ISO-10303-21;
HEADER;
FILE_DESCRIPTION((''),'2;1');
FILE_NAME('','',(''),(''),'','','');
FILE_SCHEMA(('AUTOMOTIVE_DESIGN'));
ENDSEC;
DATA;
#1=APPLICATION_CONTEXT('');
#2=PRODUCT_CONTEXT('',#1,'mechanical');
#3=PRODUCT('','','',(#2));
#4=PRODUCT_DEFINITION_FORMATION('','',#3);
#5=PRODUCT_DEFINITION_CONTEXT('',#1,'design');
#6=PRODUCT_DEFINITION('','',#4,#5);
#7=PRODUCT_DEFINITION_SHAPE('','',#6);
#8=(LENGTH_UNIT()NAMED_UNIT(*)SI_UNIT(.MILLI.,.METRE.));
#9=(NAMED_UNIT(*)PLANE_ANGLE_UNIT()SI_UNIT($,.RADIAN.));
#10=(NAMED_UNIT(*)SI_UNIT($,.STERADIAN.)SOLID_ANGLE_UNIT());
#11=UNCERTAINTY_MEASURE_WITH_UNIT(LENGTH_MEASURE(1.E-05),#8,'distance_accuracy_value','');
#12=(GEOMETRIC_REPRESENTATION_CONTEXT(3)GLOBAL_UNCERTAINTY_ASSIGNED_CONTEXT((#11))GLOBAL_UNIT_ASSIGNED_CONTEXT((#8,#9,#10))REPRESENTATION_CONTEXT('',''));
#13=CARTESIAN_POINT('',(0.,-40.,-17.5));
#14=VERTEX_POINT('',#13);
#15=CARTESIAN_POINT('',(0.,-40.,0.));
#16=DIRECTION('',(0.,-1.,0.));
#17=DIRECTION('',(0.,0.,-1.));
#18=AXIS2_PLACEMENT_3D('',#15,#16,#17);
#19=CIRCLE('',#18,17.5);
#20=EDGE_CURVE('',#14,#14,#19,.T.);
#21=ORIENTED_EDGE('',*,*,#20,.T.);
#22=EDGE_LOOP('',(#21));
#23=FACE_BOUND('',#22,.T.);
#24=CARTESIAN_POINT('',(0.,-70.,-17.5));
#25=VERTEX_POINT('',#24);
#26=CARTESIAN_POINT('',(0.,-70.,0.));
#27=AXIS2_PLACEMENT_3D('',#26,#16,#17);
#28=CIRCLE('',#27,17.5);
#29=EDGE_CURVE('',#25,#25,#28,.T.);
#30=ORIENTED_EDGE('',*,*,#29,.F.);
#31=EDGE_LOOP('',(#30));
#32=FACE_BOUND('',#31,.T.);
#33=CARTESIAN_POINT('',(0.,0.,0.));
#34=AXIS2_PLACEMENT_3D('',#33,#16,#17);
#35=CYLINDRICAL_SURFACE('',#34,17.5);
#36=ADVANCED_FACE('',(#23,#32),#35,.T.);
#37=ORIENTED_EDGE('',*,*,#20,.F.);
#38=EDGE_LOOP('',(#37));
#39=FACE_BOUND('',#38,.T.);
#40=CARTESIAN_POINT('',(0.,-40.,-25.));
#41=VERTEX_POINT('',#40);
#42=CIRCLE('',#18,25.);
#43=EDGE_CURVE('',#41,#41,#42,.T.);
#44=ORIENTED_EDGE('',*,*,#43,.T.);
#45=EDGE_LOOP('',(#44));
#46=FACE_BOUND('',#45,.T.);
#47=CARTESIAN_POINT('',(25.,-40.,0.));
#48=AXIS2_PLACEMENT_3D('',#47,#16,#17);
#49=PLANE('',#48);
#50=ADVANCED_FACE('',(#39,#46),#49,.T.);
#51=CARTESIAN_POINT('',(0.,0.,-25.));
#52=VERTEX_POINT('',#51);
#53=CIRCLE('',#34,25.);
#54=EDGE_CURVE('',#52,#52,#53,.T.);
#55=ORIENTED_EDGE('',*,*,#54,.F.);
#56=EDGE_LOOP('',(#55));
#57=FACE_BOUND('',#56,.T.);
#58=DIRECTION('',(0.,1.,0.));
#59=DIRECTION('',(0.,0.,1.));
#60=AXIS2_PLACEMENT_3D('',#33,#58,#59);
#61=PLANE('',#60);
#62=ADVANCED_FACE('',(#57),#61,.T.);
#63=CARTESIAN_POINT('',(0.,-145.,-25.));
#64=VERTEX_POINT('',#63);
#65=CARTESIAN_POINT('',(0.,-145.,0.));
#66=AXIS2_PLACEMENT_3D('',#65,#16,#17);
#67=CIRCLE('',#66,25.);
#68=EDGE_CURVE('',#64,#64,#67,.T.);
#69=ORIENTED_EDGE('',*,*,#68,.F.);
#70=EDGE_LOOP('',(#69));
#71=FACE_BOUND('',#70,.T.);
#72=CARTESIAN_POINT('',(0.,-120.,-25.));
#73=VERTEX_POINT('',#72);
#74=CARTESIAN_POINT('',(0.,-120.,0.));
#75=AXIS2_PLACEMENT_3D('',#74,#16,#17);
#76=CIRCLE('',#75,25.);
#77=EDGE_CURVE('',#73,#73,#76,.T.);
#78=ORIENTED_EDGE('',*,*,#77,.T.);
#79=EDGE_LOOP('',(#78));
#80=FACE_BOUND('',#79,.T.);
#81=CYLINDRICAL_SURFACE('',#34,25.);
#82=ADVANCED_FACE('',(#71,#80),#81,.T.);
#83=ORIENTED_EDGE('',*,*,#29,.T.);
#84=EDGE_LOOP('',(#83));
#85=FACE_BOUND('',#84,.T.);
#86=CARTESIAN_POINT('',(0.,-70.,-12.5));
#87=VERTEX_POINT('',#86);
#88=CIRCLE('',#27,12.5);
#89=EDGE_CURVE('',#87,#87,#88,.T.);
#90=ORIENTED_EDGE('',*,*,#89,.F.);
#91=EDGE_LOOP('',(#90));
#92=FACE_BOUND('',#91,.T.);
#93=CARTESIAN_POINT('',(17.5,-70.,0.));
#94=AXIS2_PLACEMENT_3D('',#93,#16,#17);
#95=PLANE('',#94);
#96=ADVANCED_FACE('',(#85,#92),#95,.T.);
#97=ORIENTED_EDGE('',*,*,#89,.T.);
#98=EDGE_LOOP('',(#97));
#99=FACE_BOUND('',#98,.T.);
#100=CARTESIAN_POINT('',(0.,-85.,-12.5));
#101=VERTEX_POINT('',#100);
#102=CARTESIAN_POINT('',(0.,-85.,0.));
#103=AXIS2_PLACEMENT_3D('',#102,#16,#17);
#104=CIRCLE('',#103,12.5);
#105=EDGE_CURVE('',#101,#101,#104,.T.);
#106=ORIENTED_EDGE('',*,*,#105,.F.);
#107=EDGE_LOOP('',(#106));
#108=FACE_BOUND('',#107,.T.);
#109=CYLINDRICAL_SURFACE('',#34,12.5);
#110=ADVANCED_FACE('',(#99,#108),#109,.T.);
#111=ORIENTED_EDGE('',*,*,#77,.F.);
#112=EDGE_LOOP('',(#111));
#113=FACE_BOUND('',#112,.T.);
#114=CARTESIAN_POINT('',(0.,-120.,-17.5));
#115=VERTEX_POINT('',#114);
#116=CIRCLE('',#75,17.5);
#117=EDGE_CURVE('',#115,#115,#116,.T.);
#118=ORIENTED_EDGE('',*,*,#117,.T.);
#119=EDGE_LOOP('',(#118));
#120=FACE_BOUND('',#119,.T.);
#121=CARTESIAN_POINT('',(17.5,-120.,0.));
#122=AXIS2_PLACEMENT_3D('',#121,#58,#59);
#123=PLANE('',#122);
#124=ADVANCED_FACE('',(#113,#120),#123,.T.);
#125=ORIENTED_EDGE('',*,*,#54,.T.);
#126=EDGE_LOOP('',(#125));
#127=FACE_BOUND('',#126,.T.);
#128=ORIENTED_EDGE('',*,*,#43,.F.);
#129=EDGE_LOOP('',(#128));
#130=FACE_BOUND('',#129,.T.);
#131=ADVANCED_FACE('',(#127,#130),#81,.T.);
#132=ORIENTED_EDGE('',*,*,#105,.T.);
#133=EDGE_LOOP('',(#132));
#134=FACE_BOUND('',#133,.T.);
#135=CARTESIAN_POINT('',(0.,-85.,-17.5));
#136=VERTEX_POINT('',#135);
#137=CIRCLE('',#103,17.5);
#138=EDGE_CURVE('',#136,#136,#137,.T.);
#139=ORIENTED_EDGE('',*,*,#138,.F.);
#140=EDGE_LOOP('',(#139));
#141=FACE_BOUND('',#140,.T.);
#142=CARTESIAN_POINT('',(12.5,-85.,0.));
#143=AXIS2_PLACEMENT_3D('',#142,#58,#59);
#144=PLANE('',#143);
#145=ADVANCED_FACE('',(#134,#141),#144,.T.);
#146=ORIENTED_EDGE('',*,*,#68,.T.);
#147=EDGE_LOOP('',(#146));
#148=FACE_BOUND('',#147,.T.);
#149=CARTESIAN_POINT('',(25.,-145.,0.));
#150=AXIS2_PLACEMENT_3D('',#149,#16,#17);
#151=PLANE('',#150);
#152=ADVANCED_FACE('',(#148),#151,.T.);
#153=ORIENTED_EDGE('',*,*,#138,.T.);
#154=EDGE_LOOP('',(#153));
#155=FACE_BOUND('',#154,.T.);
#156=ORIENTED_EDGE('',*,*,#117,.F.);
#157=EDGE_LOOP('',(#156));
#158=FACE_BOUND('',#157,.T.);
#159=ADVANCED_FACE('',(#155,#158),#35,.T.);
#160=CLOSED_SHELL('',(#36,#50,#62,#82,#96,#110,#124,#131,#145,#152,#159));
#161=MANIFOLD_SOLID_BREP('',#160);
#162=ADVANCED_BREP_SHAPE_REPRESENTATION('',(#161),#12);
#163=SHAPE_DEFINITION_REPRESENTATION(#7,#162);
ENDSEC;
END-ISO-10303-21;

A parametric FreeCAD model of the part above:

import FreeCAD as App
import Part
import Sketcher
Q = App.Units.Quantity


def add_polygon(sketch, points):
    """Adds a closed chain of lines whose ends are joined by coincident constraints."""
    first, n = sketch.GeometryCount, len(points)
    for a, b in zip(points, points[1:] + points[:1]):
        sketch.addGeometry(Part.LineSegment(App.Vector(*a, 0), App.Vector(*b, 0)), False)
    for i in range(n):
        sketch.addConstraint(Sketcher.Constraint("Coincident", first + i, 2, first + (i + 1) % n, 1))

doc = App.newDocument("Part")
params = doc.addObject("Spreadsheet::Sheet", "Params")
for row, (alias, value) in enumerate([
    ("sketch1_width", "25 mm"),
    ("sketch1_width2", "5 mm"),
    ("sketch1_height", "145 mm"),
    ("sketch1_height2", "35 mm"),
    ("sketch1_height3", "15 mm"),
    ("revolution_angle", "360 deg"),
], start=1):
    params.set(f"A{row}", alias)
    params.set(f"B{row}", "=" + value)
    params.setAlias(f"B{row}", alias)

body = doc.addObject("PartDesign::Body", "Body")

# Sketch on XY plane
sketch1 = body.newObject("Sketcher::SketchObject", "Sketch")
sketch1.AttachmentSupport = (doc.getObject("XY_Plane"), [""])
sketch1.MapMode = "FlatFace"
add_polygon(sketch1, [(25, 0), (0, 0), (0, -145), (25, -145), (25, -120), (17.5, -120), (17.5, -85), (12.5, -85), (12.5, -70), (17.5, -70), (17.5, -40), (25, -40)])  # lines 0-11
sketch1.addConstraint(Sketcher.Constraint("Horizontal", 0))
sketch1.addConstraint(Sketcher.Constraint("Vertical", 1))
sketch1.addConstraint(Sketcher.Constraint("Horizontal", 2))
sketch1.addConstraint(Sketcher.Constraint("Vertical", 3))
sketch1.addConstraint(Sketcher.Constraint("Horizontal", 4))
sketch1.addConstraint(Sketcher.Constraint("Vertical", 5))
sketch1.addConstraint(Sketcher.Constraint("Horizontal", 6))
sketch1.addConstraint(Sketcher.Constraint("Vertical", 7))
sketch1.addConstraint(Sketcher.Constraint("Horizontal", 8))
sketch1.addConstraint(Sketcher.Constraint("Vertical", 9))
sketch1.addConstraint(Sketcher.Constraint("Horizontal", 10))
sketch1.addConstraint(Sketcher.Constraint("Vertical", 11))
sketch1.addConstraint(Sketcher.Constraint("Coincident", 0, 2, -1, 1))
sketch1.addConstraint(Sketcher.Constraint("Vertical", 5, 2, 8, 2))
sketch1.addConstraint(Sketcher.Constraint("Vertical", 3, 2, 10, 2))
sketch1.addConstraint(Sketcher.Constraint("Equal", 2, 3))
sketch1.addConstraint(Sketcher.Constraint("DistanceX", 0, 2, 0, 1, Q("25 mm")))
sketch1.addConstraint(Sketcher.Constraint("DistanceX", 6, 2, 6, 1, Q("5 mm")))
sketch1.addConstraint(Sketcher.Constraint("DistanceY", 1, 2, 1, 1, Q("145 mm")))
sketch1.addConstraint(Sketcher.Constraint("DistanceY", 5, 1, 5, 2, Q("35 mm")))
sketch1.addConstraint(Sketcher.Constraint("DistanceY", 7, 1, 7, 2, Q("15 mm")))
sketch1.addConstraint(Sketcher.Constraint("DistanceY", 9, 1, 9, 2, Q("30 mm")))
sketch1.addConstraint(Sketcher.Constraint("DistanceX", 4, 2, 4, 1, Q("7.5 mm")))
sketch1.setExpression("Constraints[28]", "Params.sketch1_width")
sketch1.setExpression("Constraints[29]", "Params.sketch1_width2")
sketch1.setExpression("Constraints[30]", "Params.sketch1_height")
sketch1.setExpression("Constraints[31]", "Params.sketch1_height2")
sketch1.setExpression("Constraints[32]", "Params.sketch1_height3")
revolution = body.newObject("PartDesign::Revolution", "Revolution")
revolution.Profile = sketch1
revolution.ReferenceAxis = (sketch1, ["V_Axis"])
revolution.setExpression("Angle", "Params.revolution_angle")

doc.recompute()
